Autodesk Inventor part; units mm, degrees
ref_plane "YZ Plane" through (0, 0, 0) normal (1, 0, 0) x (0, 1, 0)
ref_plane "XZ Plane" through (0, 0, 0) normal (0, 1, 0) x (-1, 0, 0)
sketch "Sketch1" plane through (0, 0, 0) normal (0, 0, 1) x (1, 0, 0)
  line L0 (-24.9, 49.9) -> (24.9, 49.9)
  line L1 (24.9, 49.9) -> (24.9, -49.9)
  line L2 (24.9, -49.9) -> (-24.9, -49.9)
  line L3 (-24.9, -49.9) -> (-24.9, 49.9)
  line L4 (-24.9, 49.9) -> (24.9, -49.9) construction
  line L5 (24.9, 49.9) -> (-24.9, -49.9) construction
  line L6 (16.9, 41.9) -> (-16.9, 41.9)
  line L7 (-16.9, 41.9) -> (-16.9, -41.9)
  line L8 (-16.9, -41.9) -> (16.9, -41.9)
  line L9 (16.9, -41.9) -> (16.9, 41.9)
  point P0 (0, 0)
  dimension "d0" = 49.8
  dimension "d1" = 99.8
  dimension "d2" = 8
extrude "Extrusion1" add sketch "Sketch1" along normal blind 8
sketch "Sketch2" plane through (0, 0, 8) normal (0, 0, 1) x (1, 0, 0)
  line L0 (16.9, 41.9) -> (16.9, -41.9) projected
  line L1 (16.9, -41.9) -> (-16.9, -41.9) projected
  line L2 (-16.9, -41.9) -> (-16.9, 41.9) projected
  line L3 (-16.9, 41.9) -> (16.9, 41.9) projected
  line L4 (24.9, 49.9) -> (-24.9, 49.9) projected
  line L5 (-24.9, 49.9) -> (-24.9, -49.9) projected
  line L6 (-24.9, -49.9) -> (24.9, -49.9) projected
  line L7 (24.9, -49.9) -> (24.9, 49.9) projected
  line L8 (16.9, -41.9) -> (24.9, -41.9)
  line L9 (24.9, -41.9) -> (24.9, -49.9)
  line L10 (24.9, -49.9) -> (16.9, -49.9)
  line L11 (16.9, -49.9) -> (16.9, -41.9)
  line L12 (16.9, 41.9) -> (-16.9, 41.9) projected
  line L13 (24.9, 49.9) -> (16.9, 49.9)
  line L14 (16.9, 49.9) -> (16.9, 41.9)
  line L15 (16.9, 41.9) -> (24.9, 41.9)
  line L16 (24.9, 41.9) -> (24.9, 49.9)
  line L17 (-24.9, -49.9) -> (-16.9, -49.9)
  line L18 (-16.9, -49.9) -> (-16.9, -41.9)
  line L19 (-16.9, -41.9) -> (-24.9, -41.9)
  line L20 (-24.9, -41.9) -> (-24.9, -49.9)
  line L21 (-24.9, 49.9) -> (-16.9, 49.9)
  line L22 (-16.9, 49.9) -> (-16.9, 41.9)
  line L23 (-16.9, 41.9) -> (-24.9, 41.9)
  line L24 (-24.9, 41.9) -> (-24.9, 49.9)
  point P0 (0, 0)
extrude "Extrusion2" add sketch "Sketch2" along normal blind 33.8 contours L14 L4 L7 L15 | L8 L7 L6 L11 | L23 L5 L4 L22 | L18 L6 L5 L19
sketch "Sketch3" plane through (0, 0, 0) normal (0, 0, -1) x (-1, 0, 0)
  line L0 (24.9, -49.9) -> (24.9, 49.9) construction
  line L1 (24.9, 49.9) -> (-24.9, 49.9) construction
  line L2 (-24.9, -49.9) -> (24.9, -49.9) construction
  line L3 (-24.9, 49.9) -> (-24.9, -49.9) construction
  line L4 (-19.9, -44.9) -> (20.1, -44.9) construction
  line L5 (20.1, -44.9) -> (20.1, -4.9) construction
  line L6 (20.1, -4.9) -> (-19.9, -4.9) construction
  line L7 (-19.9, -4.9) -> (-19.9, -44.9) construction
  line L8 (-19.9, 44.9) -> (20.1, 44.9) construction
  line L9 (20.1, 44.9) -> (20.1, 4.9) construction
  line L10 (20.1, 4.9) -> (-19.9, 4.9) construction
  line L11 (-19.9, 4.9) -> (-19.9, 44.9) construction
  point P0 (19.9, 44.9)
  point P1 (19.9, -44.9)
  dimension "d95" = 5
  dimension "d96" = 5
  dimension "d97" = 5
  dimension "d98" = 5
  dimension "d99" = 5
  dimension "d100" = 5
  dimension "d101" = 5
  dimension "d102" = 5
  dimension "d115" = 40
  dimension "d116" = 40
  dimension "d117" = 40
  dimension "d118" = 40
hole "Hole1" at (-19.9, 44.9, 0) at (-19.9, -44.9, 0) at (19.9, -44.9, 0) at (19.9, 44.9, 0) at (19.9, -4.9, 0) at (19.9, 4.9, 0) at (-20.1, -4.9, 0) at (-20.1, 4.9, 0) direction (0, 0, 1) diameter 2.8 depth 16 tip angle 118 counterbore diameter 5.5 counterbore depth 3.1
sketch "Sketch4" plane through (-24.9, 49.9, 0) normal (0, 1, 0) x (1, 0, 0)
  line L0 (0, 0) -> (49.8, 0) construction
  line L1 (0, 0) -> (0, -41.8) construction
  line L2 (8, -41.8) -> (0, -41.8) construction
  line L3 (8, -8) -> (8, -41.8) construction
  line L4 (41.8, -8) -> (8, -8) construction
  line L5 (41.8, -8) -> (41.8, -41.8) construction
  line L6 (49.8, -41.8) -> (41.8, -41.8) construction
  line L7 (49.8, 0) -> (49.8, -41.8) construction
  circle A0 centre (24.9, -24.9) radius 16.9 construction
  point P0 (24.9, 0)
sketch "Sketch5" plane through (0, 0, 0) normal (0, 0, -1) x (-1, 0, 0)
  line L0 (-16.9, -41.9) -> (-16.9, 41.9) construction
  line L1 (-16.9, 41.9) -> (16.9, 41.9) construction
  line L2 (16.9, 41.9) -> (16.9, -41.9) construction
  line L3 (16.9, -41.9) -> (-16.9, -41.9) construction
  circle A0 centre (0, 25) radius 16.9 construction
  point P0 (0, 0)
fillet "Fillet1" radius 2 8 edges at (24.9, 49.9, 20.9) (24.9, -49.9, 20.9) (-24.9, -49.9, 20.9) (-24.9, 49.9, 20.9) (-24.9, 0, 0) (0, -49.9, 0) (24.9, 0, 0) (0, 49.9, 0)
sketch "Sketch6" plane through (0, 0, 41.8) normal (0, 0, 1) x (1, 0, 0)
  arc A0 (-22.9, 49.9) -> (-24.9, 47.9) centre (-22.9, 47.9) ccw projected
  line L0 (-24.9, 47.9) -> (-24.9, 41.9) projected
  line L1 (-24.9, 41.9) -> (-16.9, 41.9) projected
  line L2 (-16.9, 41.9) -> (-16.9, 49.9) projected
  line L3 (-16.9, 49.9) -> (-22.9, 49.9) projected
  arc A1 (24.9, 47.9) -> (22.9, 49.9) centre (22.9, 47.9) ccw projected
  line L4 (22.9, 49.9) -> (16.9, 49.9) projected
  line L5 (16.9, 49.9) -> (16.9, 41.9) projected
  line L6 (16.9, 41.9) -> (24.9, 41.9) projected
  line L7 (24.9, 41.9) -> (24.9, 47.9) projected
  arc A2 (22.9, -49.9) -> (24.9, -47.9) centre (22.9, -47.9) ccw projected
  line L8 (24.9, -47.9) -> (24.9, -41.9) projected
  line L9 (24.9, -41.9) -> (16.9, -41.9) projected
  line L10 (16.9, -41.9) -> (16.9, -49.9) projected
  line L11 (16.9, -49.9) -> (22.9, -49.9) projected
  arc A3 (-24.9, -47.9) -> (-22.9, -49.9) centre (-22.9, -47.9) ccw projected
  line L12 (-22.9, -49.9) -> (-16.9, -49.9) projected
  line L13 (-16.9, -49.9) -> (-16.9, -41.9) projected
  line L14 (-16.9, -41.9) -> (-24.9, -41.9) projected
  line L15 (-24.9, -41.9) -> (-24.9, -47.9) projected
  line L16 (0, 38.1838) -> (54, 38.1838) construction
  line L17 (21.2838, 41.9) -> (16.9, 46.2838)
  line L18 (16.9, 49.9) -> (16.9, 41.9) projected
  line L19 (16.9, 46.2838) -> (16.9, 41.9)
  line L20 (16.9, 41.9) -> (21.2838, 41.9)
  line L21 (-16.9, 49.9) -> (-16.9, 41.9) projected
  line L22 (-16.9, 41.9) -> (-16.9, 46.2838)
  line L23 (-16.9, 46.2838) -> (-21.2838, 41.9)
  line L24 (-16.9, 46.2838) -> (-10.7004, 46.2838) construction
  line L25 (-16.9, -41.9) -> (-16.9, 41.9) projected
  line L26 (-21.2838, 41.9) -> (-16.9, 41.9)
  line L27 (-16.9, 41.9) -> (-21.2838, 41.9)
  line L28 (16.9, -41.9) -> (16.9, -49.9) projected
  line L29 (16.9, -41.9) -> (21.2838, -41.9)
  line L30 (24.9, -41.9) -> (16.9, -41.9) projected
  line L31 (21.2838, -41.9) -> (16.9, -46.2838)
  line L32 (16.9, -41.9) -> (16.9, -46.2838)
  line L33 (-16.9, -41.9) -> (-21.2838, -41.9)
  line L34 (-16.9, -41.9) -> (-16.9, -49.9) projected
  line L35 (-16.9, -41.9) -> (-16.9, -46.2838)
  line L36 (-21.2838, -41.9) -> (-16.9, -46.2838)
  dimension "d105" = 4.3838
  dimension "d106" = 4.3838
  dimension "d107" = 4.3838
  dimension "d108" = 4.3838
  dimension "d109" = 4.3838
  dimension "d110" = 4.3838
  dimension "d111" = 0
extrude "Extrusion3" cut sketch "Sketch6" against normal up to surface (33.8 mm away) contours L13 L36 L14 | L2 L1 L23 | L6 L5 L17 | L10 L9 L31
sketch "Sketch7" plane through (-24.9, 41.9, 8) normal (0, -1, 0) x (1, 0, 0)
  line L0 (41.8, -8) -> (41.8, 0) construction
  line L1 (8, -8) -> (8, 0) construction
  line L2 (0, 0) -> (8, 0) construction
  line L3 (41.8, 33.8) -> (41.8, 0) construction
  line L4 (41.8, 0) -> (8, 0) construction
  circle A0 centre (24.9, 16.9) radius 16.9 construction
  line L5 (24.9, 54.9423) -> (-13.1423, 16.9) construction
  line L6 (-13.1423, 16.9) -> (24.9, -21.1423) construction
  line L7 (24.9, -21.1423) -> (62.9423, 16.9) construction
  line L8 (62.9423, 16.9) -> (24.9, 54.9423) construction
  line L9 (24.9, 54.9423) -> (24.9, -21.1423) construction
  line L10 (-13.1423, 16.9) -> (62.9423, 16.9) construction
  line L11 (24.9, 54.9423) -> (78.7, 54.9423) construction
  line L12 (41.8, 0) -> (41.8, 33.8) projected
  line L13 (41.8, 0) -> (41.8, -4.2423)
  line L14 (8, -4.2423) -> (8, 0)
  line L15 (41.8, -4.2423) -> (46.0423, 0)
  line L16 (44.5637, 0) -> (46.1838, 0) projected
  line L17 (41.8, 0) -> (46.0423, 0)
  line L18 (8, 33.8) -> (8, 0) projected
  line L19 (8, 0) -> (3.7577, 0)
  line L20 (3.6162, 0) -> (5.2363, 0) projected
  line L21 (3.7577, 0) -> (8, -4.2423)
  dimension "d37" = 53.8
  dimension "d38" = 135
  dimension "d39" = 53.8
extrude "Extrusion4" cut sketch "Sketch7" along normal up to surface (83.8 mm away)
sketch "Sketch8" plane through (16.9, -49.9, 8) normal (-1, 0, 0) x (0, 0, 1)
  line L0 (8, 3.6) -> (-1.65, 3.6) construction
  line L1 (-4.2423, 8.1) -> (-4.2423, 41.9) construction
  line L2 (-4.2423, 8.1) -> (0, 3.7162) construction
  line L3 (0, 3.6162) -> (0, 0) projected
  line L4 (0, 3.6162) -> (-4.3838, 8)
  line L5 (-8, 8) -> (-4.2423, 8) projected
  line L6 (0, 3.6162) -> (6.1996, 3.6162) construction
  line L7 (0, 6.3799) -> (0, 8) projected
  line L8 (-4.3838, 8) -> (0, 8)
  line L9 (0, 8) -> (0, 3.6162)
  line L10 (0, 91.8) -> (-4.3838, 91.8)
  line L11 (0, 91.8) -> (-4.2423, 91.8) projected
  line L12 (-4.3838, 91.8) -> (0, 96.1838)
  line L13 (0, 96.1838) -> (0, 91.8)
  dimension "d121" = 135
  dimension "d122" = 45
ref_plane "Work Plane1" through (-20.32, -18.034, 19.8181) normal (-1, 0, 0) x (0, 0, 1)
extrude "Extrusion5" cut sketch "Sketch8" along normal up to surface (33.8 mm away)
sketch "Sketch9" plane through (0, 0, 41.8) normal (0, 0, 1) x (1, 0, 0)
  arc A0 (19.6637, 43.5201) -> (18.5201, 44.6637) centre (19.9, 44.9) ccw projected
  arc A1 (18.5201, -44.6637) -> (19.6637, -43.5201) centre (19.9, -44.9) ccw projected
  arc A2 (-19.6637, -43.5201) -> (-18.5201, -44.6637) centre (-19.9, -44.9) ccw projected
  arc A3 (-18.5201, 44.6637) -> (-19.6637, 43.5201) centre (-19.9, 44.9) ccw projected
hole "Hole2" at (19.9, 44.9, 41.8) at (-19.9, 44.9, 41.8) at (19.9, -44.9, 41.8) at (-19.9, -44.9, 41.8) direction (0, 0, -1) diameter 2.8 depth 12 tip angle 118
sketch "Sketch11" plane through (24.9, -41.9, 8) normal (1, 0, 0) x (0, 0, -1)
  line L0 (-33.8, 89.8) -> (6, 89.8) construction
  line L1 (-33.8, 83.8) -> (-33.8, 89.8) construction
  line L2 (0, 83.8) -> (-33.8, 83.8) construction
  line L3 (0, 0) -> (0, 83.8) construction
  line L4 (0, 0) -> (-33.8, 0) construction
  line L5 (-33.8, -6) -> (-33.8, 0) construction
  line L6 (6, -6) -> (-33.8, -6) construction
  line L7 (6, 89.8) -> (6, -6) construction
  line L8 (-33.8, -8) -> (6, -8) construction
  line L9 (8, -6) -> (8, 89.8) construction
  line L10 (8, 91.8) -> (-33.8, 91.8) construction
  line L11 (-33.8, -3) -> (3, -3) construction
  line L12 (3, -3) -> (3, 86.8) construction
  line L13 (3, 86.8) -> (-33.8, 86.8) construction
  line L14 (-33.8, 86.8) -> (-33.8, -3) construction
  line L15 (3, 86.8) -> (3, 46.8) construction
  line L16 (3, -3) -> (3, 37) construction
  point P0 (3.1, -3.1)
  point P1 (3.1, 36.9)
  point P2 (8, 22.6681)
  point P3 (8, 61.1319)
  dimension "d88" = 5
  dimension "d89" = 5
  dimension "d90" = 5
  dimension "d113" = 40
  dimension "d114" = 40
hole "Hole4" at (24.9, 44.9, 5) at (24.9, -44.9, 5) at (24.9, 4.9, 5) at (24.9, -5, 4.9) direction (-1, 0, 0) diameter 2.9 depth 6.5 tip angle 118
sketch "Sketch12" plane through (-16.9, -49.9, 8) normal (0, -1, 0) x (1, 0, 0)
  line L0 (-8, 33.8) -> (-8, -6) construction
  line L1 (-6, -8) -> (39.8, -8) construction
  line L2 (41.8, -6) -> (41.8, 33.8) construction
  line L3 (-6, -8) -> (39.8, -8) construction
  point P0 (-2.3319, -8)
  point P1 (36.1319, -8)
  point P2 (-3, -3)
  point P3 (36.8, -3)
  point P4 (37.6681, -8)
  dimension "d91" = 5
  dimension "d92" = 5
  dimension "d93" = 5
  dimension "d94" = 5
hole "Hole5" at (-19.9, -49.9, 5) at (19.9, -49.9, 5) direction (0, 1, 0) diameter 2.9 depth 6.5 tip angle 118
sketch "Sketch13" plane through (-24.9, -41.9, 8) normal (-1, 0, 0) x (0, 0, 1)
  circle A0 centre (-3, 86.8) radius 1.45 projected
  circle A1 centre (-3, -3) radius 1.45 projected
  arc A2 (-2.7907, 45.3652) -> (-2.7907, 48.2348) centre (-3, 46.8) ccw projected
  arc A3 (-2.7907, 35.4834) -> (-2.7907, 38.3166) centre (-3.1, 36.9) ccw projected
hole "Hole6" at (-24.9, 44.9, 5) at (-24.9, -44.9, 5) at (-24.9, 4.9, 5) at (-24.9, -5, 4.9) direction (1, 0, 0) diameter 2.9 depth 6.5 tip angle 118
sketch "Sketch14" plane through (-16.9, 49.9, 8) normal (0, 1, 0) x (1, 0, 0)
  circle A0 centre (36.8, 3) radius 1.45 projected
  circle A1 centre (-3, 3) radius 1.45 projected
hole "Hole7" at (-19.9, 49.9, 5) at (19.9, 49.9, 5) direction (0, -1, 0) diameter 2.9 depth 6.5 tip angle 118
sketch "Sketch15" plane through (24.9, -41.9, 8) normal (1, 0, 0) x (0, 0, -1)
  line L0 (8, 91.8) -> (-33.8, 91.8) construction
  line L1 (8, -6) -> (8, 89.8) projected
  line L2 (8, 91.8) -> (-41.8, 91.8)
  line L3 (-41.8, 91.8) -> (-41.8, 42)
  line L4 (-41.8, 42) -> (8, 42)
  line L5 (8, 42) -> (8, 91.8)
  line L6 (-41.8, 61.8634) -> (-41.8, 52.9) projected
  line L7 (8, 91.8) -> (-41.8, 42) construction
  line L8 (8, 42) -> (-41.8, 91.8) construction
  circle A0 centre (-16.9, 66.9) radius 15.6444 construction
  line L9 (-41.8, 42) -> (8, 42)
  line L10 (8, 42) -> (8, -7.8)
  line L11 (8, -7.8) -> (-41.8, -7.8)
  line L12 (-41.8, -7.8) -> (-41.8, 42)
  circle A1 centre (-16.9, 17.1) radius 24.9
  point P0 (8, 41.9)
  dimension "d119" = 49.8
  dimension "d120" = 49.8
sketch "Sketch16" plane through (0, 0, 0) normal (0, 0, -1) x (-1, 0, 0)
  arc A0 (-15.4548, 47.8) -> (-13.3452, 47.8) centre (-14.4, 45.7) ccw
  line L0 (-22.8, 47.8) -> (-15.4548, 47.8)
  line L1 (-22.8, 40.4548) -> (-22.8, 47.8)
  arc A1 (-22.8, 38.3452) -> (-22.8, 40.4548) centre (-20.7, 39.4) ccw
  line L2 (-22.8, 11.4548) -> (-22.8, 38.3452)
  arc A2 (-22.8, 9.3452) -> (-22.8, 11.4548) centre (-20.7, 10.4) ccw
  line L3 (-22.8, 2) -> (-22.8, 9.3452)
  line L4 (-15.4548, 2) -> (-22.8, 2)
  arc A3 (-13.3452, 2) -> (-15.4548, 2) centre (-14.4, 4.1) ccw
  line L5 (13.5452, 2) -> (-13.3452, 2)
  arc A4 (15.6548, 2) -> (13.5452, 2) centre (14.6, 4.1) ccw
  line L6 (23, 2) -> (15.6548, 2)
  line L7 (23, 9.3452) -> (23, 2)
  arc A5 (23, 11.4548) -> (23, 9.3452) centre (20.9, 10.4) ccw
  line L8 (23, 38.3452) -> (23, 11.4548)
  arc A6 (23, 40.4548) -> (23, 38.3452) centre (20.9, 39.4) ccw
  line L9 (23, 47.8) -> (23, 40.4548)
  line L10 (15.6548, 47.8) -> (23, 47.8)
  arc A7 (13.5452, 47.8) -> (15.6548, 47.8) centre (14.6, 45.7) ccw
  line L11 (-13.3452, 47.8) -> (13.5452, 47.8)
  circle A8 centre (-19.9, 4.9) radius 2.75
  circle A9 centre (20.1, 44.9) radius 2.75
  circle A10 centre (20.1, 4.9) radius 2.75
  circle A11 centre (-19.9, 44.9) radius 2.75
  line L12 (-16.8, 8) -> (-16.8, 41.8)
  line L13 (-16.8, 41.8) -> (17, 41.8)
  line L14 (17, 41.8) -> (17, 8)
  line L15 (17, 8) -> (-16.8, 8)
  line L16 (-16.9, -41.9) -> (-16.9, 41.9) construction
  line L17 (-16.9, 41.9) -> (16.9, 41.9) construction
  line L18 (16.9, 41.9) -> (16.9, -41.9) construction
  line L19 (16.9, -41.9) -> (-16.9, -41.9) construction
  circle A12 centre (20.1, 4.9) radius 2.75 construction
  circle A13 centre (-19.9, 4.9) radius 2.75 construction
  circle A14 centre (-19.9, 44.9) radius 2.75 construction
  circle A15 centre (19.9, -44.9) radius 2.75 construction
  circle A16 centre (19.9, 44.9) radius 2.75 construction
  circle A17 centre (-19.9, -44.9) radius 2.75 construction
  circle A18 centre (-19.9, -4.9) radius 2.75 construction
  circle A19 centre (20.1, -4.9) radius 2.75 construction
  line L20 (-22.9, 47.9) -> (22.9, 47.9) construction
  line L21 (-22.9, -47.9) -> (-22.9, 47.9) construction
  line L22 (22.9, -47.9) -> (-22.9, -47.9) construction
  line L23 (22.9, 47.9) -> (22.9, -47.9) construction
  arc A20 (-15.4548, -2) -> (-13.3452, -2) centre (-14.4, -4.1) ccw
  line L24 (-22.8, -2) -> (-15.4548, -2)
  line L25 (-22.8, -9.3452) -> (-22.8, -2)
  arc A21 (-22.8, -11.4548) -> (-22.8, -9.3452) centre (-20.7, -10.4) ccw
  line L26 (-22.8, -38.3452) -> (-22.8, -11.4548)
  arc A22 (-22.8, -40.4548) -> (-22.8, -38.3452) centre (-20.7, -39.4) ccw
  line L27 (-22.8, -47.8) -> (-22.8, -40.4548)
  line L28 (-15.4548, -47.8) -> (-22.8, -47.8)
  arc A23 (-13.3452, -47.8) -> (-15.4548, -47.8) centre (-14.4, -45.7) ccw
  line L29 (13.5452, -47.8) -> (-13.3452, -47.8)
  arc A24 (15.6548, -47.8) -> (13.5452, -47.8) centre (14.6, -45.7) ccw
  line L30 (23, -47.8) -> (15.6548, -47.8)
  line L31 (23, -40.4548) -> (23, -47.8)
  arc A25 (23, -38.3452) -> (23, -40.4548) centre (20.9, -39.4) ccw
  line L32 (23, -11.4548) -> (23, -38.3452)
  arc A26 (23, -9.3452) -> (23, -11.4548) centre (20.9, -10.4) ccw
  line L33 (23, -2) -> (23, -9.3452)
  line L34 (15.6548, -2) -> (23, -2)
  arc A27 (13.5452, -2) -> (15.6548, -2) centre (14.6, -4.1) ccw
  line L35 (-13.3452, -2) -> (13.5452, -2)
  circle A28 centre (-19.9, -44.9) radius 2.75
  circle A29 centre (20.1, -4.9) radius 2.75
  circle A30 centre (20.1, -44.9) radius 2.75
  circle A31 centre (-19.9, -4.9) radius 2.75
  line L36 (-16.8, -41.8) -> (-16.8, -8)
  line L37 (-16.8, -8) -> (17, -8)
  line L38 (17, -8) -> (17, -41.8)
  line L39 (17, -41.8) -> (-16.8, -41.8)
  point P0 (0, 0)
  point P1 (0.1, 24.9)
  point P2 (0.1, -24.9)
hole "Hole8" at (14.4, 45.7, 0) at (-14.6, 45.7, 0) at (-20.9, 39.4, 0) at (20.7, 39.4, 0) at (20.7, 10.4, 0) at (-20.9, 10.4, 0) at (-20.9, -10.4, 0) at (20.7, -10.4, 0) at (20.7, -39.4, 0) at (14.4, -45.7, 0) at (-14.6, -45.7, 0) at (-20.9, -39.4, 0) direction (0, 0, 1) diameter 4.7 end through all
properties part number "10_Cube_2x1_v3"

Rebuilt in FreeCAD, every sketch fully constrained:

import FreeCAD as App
import Part
import Sketcher
from FreeCAD import Vector


def edges_at(feature, points):
    """Names of the edges that pass closest to the given points."""
    edges = feature.Shape.Edges
    near = lambda p: min(range(len(edges)), key=lambda i: edges[i].distToShape(Part.Vertex(*p))[0])
    return sorted({f"Edge{near(p) + 1}" for p in points})


def add_polygon(sketch, points):
    """Adds a closed chain of lines whose ends are joined by coincident constraints."""
    first, n = sketch.GeometryCount, len(points)
    for a, b in zip(points, points[1:] + points[:1]):
        sketch.addGeometry(Part.LineSegment(App.Vector(*a, 0), App.Vector(*b, 0)), False)
    for i in range(n):
        sketch.addConstraint(Sketcher.Constraint("Coincident", first + i, 2, first + (i + 1) % n, 1))

doc = App.newDocument("Part")
body = doc.addObject("PartDesign::Body", "Body")

# Sketch on XY plane
sketch1 = doc.addObject("Sketcher::SketchObject", "Sketch")
body.addObject(sketch1)
sketch1.AttachmentSupport = (doc.XY_Plane, [""])
sketch1.MapMode = "FlatFace"
add_polygon(sketch1, [(24.9, 49.9), (-24.9, 49.9), (-24.9, -49.9), (24.9, -49.9)])  # lines 0-3
add_polygon(sketch1, [(-16.9, 41.9), (16.9, 41.9), (16.9, -41.9), (-16.9, -41.9)])  # lines 4-7
sketch1.addConstraint(Sketcher.Constraint("Horizontal", 0))
sketch1.addConstraint(Sketcher.Constraint("Vertical", 1))
sketch1.addConstraint(Sketcher.Constraint("Horizontal", 2))
sketch1.addConstraint(Sketcher.Constraint("Vertical", 3))
sketch1.addConstraint(Sketcher.Constraint("Horizontal", 4))
sketch1.addConstraint(Sketcher.Constraint("Vertical", 5))
sketch1.addConstraint(Sketcher.Constraint("Horizontal", 6))
sketch1.addConstraint(Sketcher.Constraint("Vertical", 7))
sketch1.addConstraint(Sketcher.Constraint("Symmetric", 0, 2, 2, 2, -1, 1))
sketch1.addConstraint(Sketcher.Constraint("Symmetric", 4, 2, 6, 2, -1, 1))
sketch1.addConstraint(Sketcher.Constraint("DistanceX", 0, 2, 0, 1, 49.8))
sketch1.addConstraint(Sketcher.Constraint("DistanceY", 1, 2, 1, 1, 99.8))
sketch1.addConstraint(Sketcher.Constraint("DistanceX", 4, 2, 3, 2, 8.0))
sketch1.addConstraint(Sketcher.Constraint("DistanceY", 4, 2, 3, 2, 8.0))
pad1 = doc.addObject("PartDesign::Pad", "Pad")
body.addObject(pad1)
pad1.Profile = sketch1
pad1.Length = 8

# Sketch on XY plane
sketch2 = doc.addObject("Sketcher::SketchObject", "Sketch001")
body.addObject(sketch2)
sketch2.AttachmentSupport = (doc.XY_Plane, [""])
sketch2.MapMode = "FlatFace"
sketch2.AttachmentOffset = App.Placement(Vector(0, 0, 8), App.Rotation())
add_polygon(sketch2, [(16.9, 49.9), (16.9, 41.9), (24.9, 41.9), (24.9, 49.9)])  # lines 0-3
add_polygon(sketch2, [(24.9, -41.9), (16.9, -41.9), (16.9, -49.9), (24.9, -49.9)])  # lines 4-7
add_polygon(sketch2, [(-24.9, 41.9), (-16.9, 41.9), (-16.9, 49.9), (-24.9, 49.9)])  # lines 8-11
add_polygon(sketch2, [(-16.9, -49.9), (-16.9, -41.9), (-24.9, -41.9), (-24.9, -49.9)])  # lines 12-15
sketch2.addConstraint(Sketcher.Constraint("Vertical", 0))
sketch2.addConstraint(Sketcher.Constraint("Horizontal", 1))
sketch2.addConstraint(Sketcher.Constraint("Vertical", 2))
sketch2.addConstraint(Sketcher.Constraint("Horizontal", 3))
sketch2.addConstraint(Sketcher.Constraint("Horizontal", 4))
sketch2.addConstraint(Sketcher.Constraint("Vertical", 5))
sketch2.addConstraint(Sketcher.Constraint("Horizontal", 6))
sketch2.addConstraint(Sketcher.Constraint("Vertical", 7))
sketch2.addConstraint(Sketcher.Constraint("Horizontal", 8))
sketch2.addConstraint(Sketcher.Constraint("Vertical", 9))
sketch2.addConstraint(Sketcher.Constraint("Horizontal", 10))
sketch2.addConstraint(Sketcher.Constraint("Vertical", 11))
sketch2.addConstraint(Sketcher.Constraint("Vertical", 12))
sketch2.addConstraint(Sketcher.Constraint("Horizontal", 13))
sketch2.addConstraint(Sketcher.Constraint("Vertical", 14))
sketch2.addConstraint(Sketcher.Constraint("Horizontal", 15))
sketch2.addConstraint(Sketcher.Constraint("Symmetric", 4, 2, 8, 2, -1, 1))
sketch2.addConstraint(Sketcher.Constraint("Symmetric", 6, 2, 10, 2, -1, 1))
sketch2.addConstraint(Sketcher.Constraint("Symmetric", 0, 2, 12, 2, -1, 1))
sketch2.addConstraint(Sketcher.Constraint("Symmetric", 2, 2, 14, 2, -1, 1))
sketch2.addConstraint(Sketcher.Constraint("Symmetric", 0, 2, 8, 2, -2))
sketch2.addConstraint(Sketcher.Constraint("Symmetric", 2, 2, 10, 2, -2))
sketch2.addConstraint(Sketcher.Constraint("Equal", 15, 0))
sketch2.addConstraint(Sketcher.Constraint("DistanceX", 1, 1, 1, 2, 8.0))
sketch2.addConstraint(Sketcher.Constraint("DistanceX", -1, 1, 0, 2, 16.9))
sketch2.addConstraint(Sketcher.Constraint("DistanceY", -1, 1, 0, 2, 41.9))
pad2 = doc.addObject("PartDesign::Pad", "Pad001")
body.addObject(pad2)
pad2.Profile = sketch2
pad2.Length = 33.8

# Sketch on XY plane
sketch3 = doc.addObject("Sketcher::SketchObject", "Sketch002")
body.addObject(sketch3)
sketch3.AttachmentSupport = (doc.XY_Plane, [""])
sketch3.MapMode = "FlatFace"
sketch3.addGeometry(Part.Circle(Vector(-19.9, 44.9, 0), Vector(0, 0, 1), 1.4), False)
sketch3.addGeometry(Part.Circle(Vector(-19.9, -44.9, 0), Vector(0, 0, 1), 1.4), False)
sketch3.addGeometry(Part.Circle(Vector(19.9, -44.9, 0), Vector(0, 0, 1), 1.4), False)
sketch3.addGeometry(Part.Circle(Vector(19.9, 44.9, 0), Vector(0, 0, 1), 1.4), False)
sketch3.addGeometry(Part.Circle(Vector(19.9, -4.9, 0), Vector(0, 0, 1), 1.4), False)
sketch3.addGeometry(Part.Circle(Vector(19.9, 4.9, 0), Vector(0, 0, 1), 1.4), False)
sketch3.addGeometry(Part.Circle(Vector(-20.1, -4.9, 0), Vector(0, 0, 1), 1.4), False)
sketch3.addGeometry(Part.Circle(Vector(-20.1, 4.9, 0), Vector(0, 0, 1), 1.4), False)
sketch3.addConstraint(Sketcher.Constraint("Equal", 0, 1))
sketch3.addConstraint(Sketcher.Constraint("Equal", 1, 2))
sketch3.addConstraint(Sketcher.Constraint("Equal", 2, 3))
sketch3.addConstraint(Sketcher.Constraint("Equal", 3, 4))
sketch3.addConstraint(Sketcher.Constraint("Equal", 4, 5))
sketch3.addConstraint(Sketcher.Constraint("Equal", 5, 6))
sketch3.addConstraint(Sketcher.Constraint("Equal", 6, 7))
sketch3.addConstraint(Sketcher.Constraint("Symmetric", 0, 3, 2, 3, -1, 1))
sketch3.addConstraint(Sketcher.Constraint("Symmetric", 1, 3, 3, 3, -1, 1))
sketch3.addConstraint(Sketcher.Constraint("Symmetric", 1, 3, 2, 3, -2))
sketch3.addConstraint(Sketcher.Constraint("Symmetric", 4, 3, 5, 3, -1))
sketch3.addConstraint(Sketcher.Constraint("Symmetric", 6, 3, 7, 3, -1))
sketch3.addConstraint(Sketcher.Constraint("Horizontal", 4, 3, 6, 3))
sketch3.addConstraint(Sketcher.Constraint("Vertical", 3, 3, 4, 3))
sketch3.addConstraint(Sketcher.Constraint("Diameter", 0, 2.8))
sketch3.addConstraint(Sketcher.Constraint("DistanceY", 2, 3, 4, 3, 40.0))
sketch3.addConstraint(Sketcher.Constraint("DistanceX", 6, 3, 4, 3, 40.0))
sketch3.addConstraint(Sketcher.Constraint("DistanceX", 0, 3, -1, 1, 19.9))
sketch3.addConstraint(Sketcher.Constraint("DistanceY", -1, 1, 0, 3, 44.9))
doc.recompute()
hole = doc.addObject("PartDesign::Hole", "Hole")
body.addObject(hole)
hole.Profile = sketch3
hole.ThreadType = "None"
hole.Diameter = 2.8
hole.DepthType = "Dimension"
hole.Depth = 16
hole.DrillPoint = "Angled"
hole.DrillPointAngle = 118
hole.HoleCutType = "Counterbore"
hole.HoleCutDiameter = 5.5
hole.HoleCutDepth = 3.1
hole.Reversed = True
doc.recompute()

fillet = doc.addObject("PartDesign::Fillet", "Fillet")
body.addObject(fillet)
fillet.Base = (hole, edges_at(hole, [
    (24.9, 49.9, 20.9),
    (24.9, -49.9, 20.9),
    (-24.9, -49.9, 20.9),
    (-24.9, 49.9, 20.9),
    (-24.9, 0, 0),
    (0, -49.9, 0),
    (24.9, 0, 0),
    (0, 49.9, 0),
]))
fillet.Radius = 2

# Sketch on XY plane
sketch4 = doc.addObject("Sketcher::SketchObject", "Sketch003")
body.addObject(sketch4)
sketch4.AttachmentSupport = (doc.XY_Plane, [""])
sketch4.MapMode = "FlatFace"
sketch4.AttachmentOffset = App.Placement(Vector(0, 0, 41.8), App.Rotation())
add_polygon(sketch4, [(-16.9, -46.2838), (-16.9, -41.9), (-21.2838, -41.9)])  # lines 0-2
add_polygon(sketch4, [(-16.9, 41.9), (-16.9, 46.2838), (-21.2838, 41.9)])  # lines 3-5
add_polygon(sketch4, [(16.9, 41.9), (21.2838, 41.9), (16.9, 46.2838)])  # lines 6-8
add_polygon(sketch4, [(16.9, -41.9), (16.9, -46.2838), (21.2838, -41.9)])  # lines 9-11
sketch4.addConstraint(Sketcher.Constraint("Vertical", 0))
sketch4.addConstraint(Sketcher.Constraint("Horizontal", 1))
sketch4.addConstraint(Sketcher.Constraint("Vertical", 3))
sketch4.addConstraint(Sketcher.Constraint("Horizontal", 5))
sketch4.addConstraint(Sketcher.Constraint("Horizontal", 6))
sketch4.addConstraint(Sketcher.Constraint("Vertical", 8))
sketch4.addConstraint(Sketcher.Constraint("Vertical", 9))
sketch4.addConstraint(Sketcher.Constraint("Horizontal", 11))
sketch4.addConstraint(Sketcher.Constraint("Symmetric", 1, 2, 6, 2, -1, 1))
sketch4.addConstraint(Sketcher.Constraint("Symmetric", 2, 2, 7, 2, -1, 1))
sketch4.addConstraint(Sketcher.Constraint("Symmetric", 3, 2, 9, 2, -1, 1))
sketch4.addConstraint(Sketcher.Constraint("Symmetric", 4, 2, 10, 2, -1, 1))
sketch4.addConstraint(Sketcher.Constraint("Symmetric", 4, 2, 6, 2, -2))
sketch4.addConstraint(Sketcher.Constraint("Symmetric", 3, 2, 7, 2, -2))
sketch4.addConstraint(Sketcher.Constraint("Perpendicular", 2, 4))
sketch4.addConstraint(Sketcher.Constraint("DistanceX", 1, 2, 1, 1, 4.3838))
sketch4.addConstraint(Sketcher.Constraint("DistanceX", 0, 2, -1, 1, 16.9))
sketch4.addConstraint(Sketcher.Constraint("DistanceY", 0, 2, -1, 1, 41.9))
pocket1 = doc.addObject("PartDesign::Pocket", "Pocket")
body.addObject(pocket1)
pocket1.Profile = sketch4
pocket1.Length = 33.8

# Sketch on XZ plane
sketch5 = doc.addObject("Sketcher::SketchObject", "Sketch004")
body.addObject(sketch5)
sketch5.AttachmentSupport = (doc.XZ_Plane, [""])
sketch5.MapMode = "FlatFace"
sketch5.AttachmentOffset = App.Placement(Vector(0, 0, -41.9), App.Rotation())
add_polygon(sketch5, [(21.1423, 8), (16.9, 8), (16.9, 3.7577)])  # lines 0-2
add_polygon(sketch5, [(-21.1423, 8), (-16.9, 3.7577), (-16.9, 8)])  # lines 3-5
sketch5.addConstraint(Sketcher.Constraint("Horizontal", 0))
sketch5.addConstraint(Sketcher.Constraint("Vertical", 1))
sketch5.addConstraint(Sketcher.Constraint("Vertical", 4))
sketch5.addConstraint(Sketcher.Constraint("Horizontal", 5))
sketch5.addConstraint(Sketcher.Constraint("Symmetric", 1, 2, 3, 2, -2))
sketch5.addConstraint(Sketcher.Constraint("Symmetric", 2, 2, 5, 2, -2))
sketch5.addConstraint(Sketcher.Constraint("Perpendicular", 2, 3))
sketch5.addConstraint(Sketcher.Constraint("DistanceY", -1, 1, 0, 2, 8.0))
sketch5.addConstraint(Sketcher.Constraint("DistanceX", -1, 1, 0, 2, 16.9))
sketch5.addConstraint(Sketcher.Constraint("DistanceX", 0, 2, 0, 1, 4.2423))
pocket2 = doc.addObject("PartDesign::Pocket", "Pocket001")
body.addObject(pocket2)
pocket2.Profile = sketch5
pocket2.Length = 83.8
pocket2.Reversed = True

# Sketch on YZ plane
sketch6 = doc.addObject("Sketcher::SketchObject", "Sketch005")
body.addObject(sketch6)
sketch6.AttachmentSupport = (doc.YZ_Plane, [""])
sketch6.MapMode = "FlatFace"
sketch6.AttachmentOffset = App.Placement(Vector(0, 0, 16.9), App.Rotation())
add_polygon(sketch6, [(-41.9, 3.6162), (-46.2838, 8), (-41.9, 8)])  # lines 0-2
add_polygon(sketch6, [(41.9, 3.6162), (41.9, 8), (46.2838, 8)])  # lines 3-5
sketch6.addConstraint(Sketcher.Constraint("Horizontal", 1))
sketch6.addConstraint(Sketcher.Constraint("Vertical", 2))
sketch6.addConstraint(Sketcher.Constraint("Vertical", 3))
sketch6.addConstraint(Sketcher.Constraint("Horizontal", 4))
sketch6.addConstraint(Sketcher.Constraint("Symmetric", 1, 2, 3, 2, -2))
sketch6.addConstraint(Sketcher.Constraint("Perpendicular", 0, 5))
sketch6.addConstraint(Sketcher.Constraint("Horizontal", 2, 2, 5, 2))
sketch6.addConstraint(Sketcher.Constraint("Equal", 1, 4))
sketch6.addConstraint(Sketcher.Constraint("DistanceY", -1, 1, 0, 2, 8.0))
sketch6.addConstraint(Sketcher.Constraint("DistanceX", 1, 2, -1, 1, 41.9))
sketch6.addConstraint(Sketcher.Constraint("DistanceX", 1, 1, 1, 2, 4.3838))
pocket3 = doc.addObject("PartDesign::Pocket", "Pocket002")
body.addObject(pocket3)
pocket3.Profile = sketch6
pocket3.Length = 33.8

# Sketch on XY plane
sketch7 = doc.addObject("Sketcher::SketchObject", "Sketch006")
body.addObject(sketch7)
sketch7.AttachmentSupport = (doc.XY_Plane, [""])
sketch7.MapMode = "FlatFace"
sketch7.AttachmentOffset = App.Placement(Vector(0, 0, 41.8), App.Rotation())
sketch7.addGeometry(Part.Circle(Vector(19.9, 44.9, 0), Vector(0, 0, 1), 1.4), False)
sketch7.addGeometry(Part.Circle(Vector(-19.9, 44.9, 0), Vector(0, 0, 1), 1.4), False)
sketch7.addGeometry(Part.Circle(Vector(19.9, -44.9, 0), Vector(0, 0, 1), 1.4), False)
sketch7.addGeometry(Part.Circle(Vector(-19.9, -44.9, 0), Vector(0, 0, 1), 1.4), False)
sketch7.addConstraint(Sketcher.Constraint("Equal", 0, 1))
sketch7.addConstraint(Sketcher.Constraint("Equal", 1, 2))
sketch7.addConstraint(Sketcher.Constraint("Equal", 2, 3))
sketch7.addConstraint(Sketcher.Constraint("Symmetric", 1, 3, 2, 3, -1, 1))
sketch7.addConstraint(Sketcher.Constraint("Symmetric", 0, 3, 3, 3, -1, 1))
sketch7.addConstraint(Sketcher.Constraint("Symmetric", 0, 3, 1, 3, -2))
sketch7.addConstraint(Sketcher.Constraint("Diameter", 0, 2.8))
sketch7.addConstraint(Sketcher.Constraint("DistanceX", -1, 1, 0, 3, 19.9))
sketch7.addConstraint(Sketcher.Constraint("DistanceY", -1, 1, 0, 3, 44.9))
doc.recompute()
hole2 = doc.addObject("PartDesign::Hole", "Hole001")
body.addObject(hole2)
hole2.Profile = sketch7
hole2.ThreadType = "None"
hole2.Diameter = 2.8
hole2.DepthType = "Dimension"
hole2.Depth = 12
hole2.DrillPoint = "Angled"
hole2.DrillPointAngle = 118

# Sketch on YZ plane
sketch8 = doc.addObject("Sketcher::SketchObject", "Sketch007")
body.addObject(sketch8)
sketch8.AttachmentSupport = (doc.YZ_Plane, [""])
sketch8.MapMode = "FlatFace"
sketch8.AttachmentOffset = App.Placement(Vector(0, 0, 24.9), App.Rotation())
sketch8.addGeometry(Part.Circle(Vector(44.9, 5, 0), Vector(0, 0, 1), 1.45), False)
sketch8.addGeometry(Part.Circle(Vector(-44.9, 5, 0), Vector(0, 0, 1), 1.45), False)
sketch8.addGeometry(Part.Circle(Vector(4.9, 5, 0), Vector(0, 0, 1), 1.45), False)
sketch8.addGeometry(Part.Circle(Vector(-5, 4.9, 0), Vector(0, 0, 1), 1.45), False)
sketch8.addConstraint(Sketcher.Constraint("Equal", 0, 1))
sketch8.addConstraint(Sketcher.Constraint("Equal", 1, 2))
sketch8.addConstraint(Sketcher.Constraint("Equal", 2, 3))
sketch8.addConstraint(Sketcher.Constraint("Symmetric", 0, 3, 1, 3, -2))
sketch8.addConstraint(Sketcher.Constraint("Horizontal", 1, 3, 2, 3))
sketch8.addConstraint(Sketcher.Constraint("Diameter", 0, 2.9))
sketch8.addConstraint(Sketcher.Constraint("DistanceY", -1, 1, 0, 3, 5.0))
sketch8.addConstraint(Sketcher.Constraint("DistanceX", 3, 3, -1, 1, 5.0))
sketch8.addConstraint(Sketcher.Constraint("DistanceX", 2, 3, 0, 3, 40.0))
sketch8.addConstraint(Sketcher.Constraint("DistanceX", -1, 1, 0, 3, 44.9))
sketch8.addConstraint(Sketcher.Constraint("DistanceY", -1, 1, 3, 3, 4.9))
doc.recompute()
hole3 = doc.addObject("PartDesign::Hole", "Hole002")
body.addObject(hole3)
hole3.Profile = sketch8
hole3.ThreadType = "None"
hole3.Diameter = 2.9
hole3.DepthType = "Dimension"
hole3.Depth = 6.5
hole3.DrillPoint = "Angled"
hole3.DrillPointAngle = 118

# Sketch on XZ plane
sketch9 = doc.addObject("Sketcher::SketchObject", "Sketch008")
body.addObject(sketch9)
sketch9.AttachmentSupport = (doc.XZ_Plane, [""])
sketch9.MapMode = "FlatFace"
sketch9.AttachmentOffset = App.Placement(Vector(0, 0, 49.9), App.Rotation())
sketch9.addGeometry(Part.Circle(Vector(-19.9, 5, 0), Vector(0, 0, 1), 1.45), False)
sketch9.addGeometry(Part.Circle(Vector(19.9, 5, 0), Vector(0, 0, 1), 1.45), False)
sketch9.addConstraint(Sketcher.Constraint("Equal", 0, 1))
sketch9.addConstraint(Sketcher.Constraint("Symmetric", 0, 3, 1, 3, -2))
sketch9.addConstraint(Sketcher.Constraint("Diameter", 0, 2.9))
sketch9.addConstraint(Sketcher.Constraint("DistanceY", -1, 1, 0, 3, 5.0))
sketch9.addConstraint(Sketcher.Constraint("DistanceX", 0, 3, -1, 1, 19.9))
doc.recompute()
hole4 = doc.addObject("PartDesign::Hole", "Hole003")
body.addObject(hole4)
hole4.Profile = sketch9
hole4.ThreadType = "None"
hole4.Diameter = 2.9
hole4.DepthType = "Dimension"
hole4.Depth = 6.5
hole4.DrillPoint = "Angled"
hole4.DrillPointAngle = 118

# Sketch on YZ plane
sketch10 = doc.addObject("Sketcher::SketchObject", "Sketch009")
body.addObject(sketch10)
sketch10.AttachmentSupport = (doc.YZ_Plane, [""])
sketch10.MapMode = "FlatFace"
sketch10.AttachmentOffset = App.Placement(Vector(0, 0, -24.9), App.Rotation())
sketch10.addGeometry(Part.Circle(Vector(44.9, 5, 0), Vector(0, 0, 1), 1.45), False)
sketch10.addGeometry(Part.Circle(Vector(-44.9, 5, 0), Vector(0, 0, 1), 1.45), False)
sketch10.addGeometry(Part.Circle(Vector(4.9, 5, 0), Vector(0, 0, 1), 1.45), False)
sketch10.addGeometry(Part.Circle(Vector(-5, 4.9, 0), Vector(0, 0, 1), 1.45), False)
sketch10.addConstraint(Sketcher.Constraint("Equal", 0, 1))
sketch10.addConstraint(Sketcher.Constraint("Equal", 1, 2))
sketch10.addConstraint(Sketcher.Constraint("Equal", 2, 3))
sketch10.addConstraint(Sketcher.Constraint("Symmetric", 0, 3, 1, 3, -2))
sketch10.addConstraint(Sketcher.Constraint("Horizontal", 1, 3, 2, 3))
sketch10.addConstraint(Sketcher.Constraint("Diameter", 0, 2.9))
sketch10.addConstraint(Sketcher.Constraint("DistanceY", -1, 1, 0, 3, 5.0))
sketch10.addConstraint(Sketcher.Constraint("DistanceX", 3, 3, -1, 1, 5.0))
sketch10.addConstraint(Sketcher.Constraint("DistanceX", 2, 3, 0, 3, 40.0))
sketch10.addConstraint(Sketcher.Constraint("DistanceX", -1, 1, 0, 3, 44.9))
sketch10.addConstraint(Sketcher.Constraint("DistanceY", -1, 1, 3, 3, 4.9))
doc.recompute()
hole5 = doc.addObject("PartDesign::Hole", "Hole004")
body.addObject(hole5)
hole5.Profile = sketch10
hole5.ThreadType = "None"
hole5.Diameter = 2.9
hole5.DepthType = "Dimension"
hole5.Depth = 6.5
hole5.DrillPoint = "Angled"
hole5.DrillPointAngle = 118
hole5.Reversed = True

# Sketch on XZ plane
sketch11 = doc.addObject("Sketcher::SketchObject", "Sketch010")
body.addObject(sketch11)
sketch11.AttachmentSupport = (doc.XZ_Plane, [""])
sketch11.MapMode = "FlatFace"
sketch11.AttachmentOffset = App.Placement(Vector(0, 0, -49.9), App.Rotation())
sketch11.addGeometry(Part.Circle(Vector(-19.9, 5, 0), Vector(0, 0, 1), 1.45), False)
sketch11.addGeometry(Part.Circle(Vector(19.9, 5, 0), Vector(0, 0, 1), 1.45), False)
sketch11.addConstraint(Sketcher.Constraint("Equal", 0, 1))
sketch11.addConstraint(Sketcher.Constraint("Symmetric", 0, 3, 1, 3, -2))
sketch11.addConstraint(Sketcher.Constraint("Diameter", 0, 2.9))
sketch11.addConstraint(Sketcher.Constraint("DistanceY", -1, 1, 0, 3, 5.0))
sketch11.addConstraint(Sketcher.Constraint("DistanceX", 0, 3, -1, 1, 19.9))
doc.recompute()
hole6 = doc.addObject("PartDesign::Hole", "Hole005")
body.addObject(hole6)
hole6.Profile = sketch11
hole6.ThreadType = "None"
hole6.Diameter = 2.9
hole6.DepthType = "Dimension"
hole6.Depth = 6.5
hole6.DrillPoint = "Angled"
hole6.DrillPointAngle = 118
hole6.Reversed = True

# Sketch on XY plane
sketch12 = doc.addObject("Sketcher::SketchObject", "Sketch011")
body.addObject(sketch12)
sketch12.AttachmentSupport = (doc.XY_Plane, [""])
sketch12.MapMode = "FlatFace"
sketch12.addGeometry(Part.Circle(Vector(14.4, 45.7, 0), Vector(0, 0, 1), 2.35), False)
sketch12.addGeometry(Part.Circle(Vector(-14.6, 45.7, 0), Vector(0, 0, 1), 2.35), False)
sketch12.addGeometry(Part.Circle(Vector(-20.9, 39.4, 0), Vector(0, 0, 1), 2.35), False)
sketch12.addGeometry(Part.Circle(Vector(20.7, 39.4, 0), Vector(0, 0, 1), 2.35), False)
sketch12.addGeometry(Part.Circle(Vector(20.7, 10.4, 0), Vector(0, 0, 1), 2.35), False)
sketch12.addGeometry(Part.Circle(Vector(-20.9, 10.4, 0), Vector(0, 0, 1), 2.35), False)
sketch12.addGeometry(Part.Circle(Vector(-20.9, -10.4, 0), Vector(0, 0, 1), 2.35), False)
sketch12.addGeometry(Part.Circle(Vector(20.7, -10.4, 0), Vector(0, 0, 1), 2.35), False)
sketch12.addGeometry(Part.Circle(Vector(20.7, -39.4, 0), Vector(0, 0, 1), 2.35), False)
sketch12.addGeometry(Part.Circle(Vector(14.4, -45.7, 0), Vector(0, 0, 1), 2.35), False)
sketch12.addGeometry(Part.Circle(Vector(-14.6, -45.7, 0), Vector(0, 0, 1), 2.35), False)
sketch12.addGeometry(Part.Circle(Vector(-20.9, -39.4, 0), Vector(0, 0, 1), 2.35), False)
sketch12.addConstraint(Sketcher.Constraint("Equal", 0, 1))
sketch12.addConstraint(Sketcher.Constraint("Equal", 1, 2))
sketch12.addConstraint(Sketcher.Constraint("Equal", 2, 3))
sketch12.addConstraint(Sketcher.Constraint("Equal", 3, 4))
sketch12.addConstraint(Sketcher.Constraint("Equal", 4, 5))
sketch12.addConstraint(Sketcher.Constraint("Equal", 5, 6))
sketch12.addConstraint(Sketcher.Constraint("Equal", 6, 7))
sketch12.addConstraint(Sketcher.Constraint("Equal", 7, 8))
sketch12.addConstraint(Sketcher.Constraint("Equal", 8, 9))
sketch12.addConstraint(Sketcher.Constraint("Equal", 9, 10))
sketch12.addConstraint(Sketcher.Constraint("Equal", 10, 11))
sketch12.addConstraint(Sketcher.Constraint("Symmetric", 5, 3, 6, 3, -1))
sketch12.addConstraint(Sketcher.Constraint("Symmetric", 4, 3, 7, 3, -1))
sketch12.addConstraint(Sketcher.Constraint("Symmetric", 3, 3, 8, 3, -1))
sketch12.addConstraint(Sketcher.Constraint("Symmetric", 0, 3, 9, 3, -1))
sketch12.addConstraint(Sketcher.Constraint("Symmetric", 1, 3, 10, 3, -1))
sketch12.addConstraint(Sketcher.Constraint("Symmetric", 2, 3, 11, 3, -1))
sketch12.addConstraint(Sketcher.Constraint("Horizontal", 0, 3, 1, 3))
sketch12.addConstraint(Sketcher.Constraint("Horizontal", 2, 3, 3, 3))
sketch12.addConstraint(Sketcher.Constraint("Horizontal", 4, 3, 5, 3))
sketch12.addConstraint(Sketcher.Constraint("Vertical", 3, 3, 4, 3))
sketch12.addConstraint(Sketcher.Constraint("Vertical", 2, 3, 5, 3))
sketch12.addConstraint(Sketcher.Constraint("Diameter", 0, 4.7))
sketch12.addConstraint(Sketcher.Constraint("DistanceX", 1, 3, 0, 3, 29.0))
sketch12.addConstraint(Sketcher.Constraint("DistanceY", 4, 3, 3, 3, 29.0))
sketch12.addConstraint(Sketcher.Constraint("DistanceX", -1, 1, 0, 3, 14.4))
sketch12.addConstraint(Sketcher.Constraint("DistanceY", -1, 1, 0, 3, 45.7))
sketch12.addConstraint(Sketcher.Constraint("DistanceX", 2, 3, -1, 1, 20.9))
sketch12.addConstraint(Sketcher.Constraint("DistanceY", -1, 1, 2, 3, 39.4))
sketch12.addConstraint(Sketcher.Constraint("DistanceX", -1, 1, 3, 3, 20.7))
doc.recompute()
hole7 = doc.addObject("PartDesign::Hole", "Hole006")
body.addObject(hole7)
hole7.Profile = sketch12
hole7.ThreadType = "None"
hole7.Diameter = 4.7
hole7.DepthType = "ThroughAll"
hole7.Reversed = True

doc.recompute()
